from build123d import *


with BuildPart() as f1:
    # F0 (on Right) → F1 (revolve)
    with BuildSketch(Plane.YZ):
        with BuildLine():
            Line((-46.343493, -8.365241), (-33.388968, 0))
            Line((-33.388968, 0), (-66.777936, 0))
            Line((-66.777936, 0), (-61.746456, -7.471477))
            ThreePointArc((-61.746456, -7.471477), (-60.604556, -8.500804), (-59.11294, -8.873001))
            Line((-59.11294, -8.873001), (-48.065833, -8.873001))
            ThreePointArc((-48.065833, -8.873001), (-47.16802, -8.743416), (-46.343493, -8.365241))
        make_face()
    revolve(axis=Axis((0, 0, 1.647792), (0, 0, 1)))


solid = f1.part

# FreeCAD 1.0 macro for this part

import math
import FreeCAD as App
import Part
import Sketcher
Q = App.Units.Quantity

doc = App.newDocument("Part")
body = doc.addObject("PartDesign::Body", "Body")

# Sketch on YZ plane
sketch1 = doc.addObject("Sketcher::SketchObject", "Sketch")
body.addObject(sketch1)
sketch1.AttachmentSupport = (doc.YZ_Plane, [""])
sketch1.MapMode = "FlatFace"
sketch1.addGeometry(Part.LineSegment(App.Vector(-46.3, -8.4, 0), App.Vector(-33.4, 0, 0)), False)
sketch1.addGeometry(Part.LineSegment(App.Vector(-33.4, 0, 0), App.Vector(-66.8, 0, 0)), False)
sketch1.addGeometry(Part.LineSegment(App.Vector(-66.8, 0, 0), App.Vector(-61.7, -7.5, 0)), False)
sketch1.addGeometry(Part.ArcOfCircle(Part.Circle(App.Vector(-59.1, -5.7, 0), App.Vector(0, 0, 1), 3.2), math.radians(-146), math.radians(-90)), False)
sketch1.addGeometry(Part.LineSegment(App.Vector(-59.1, -8.9, 0), App.Vector(-48.1, -8.9, 0)), False)
sketch1.addGeometry(Part.ArcOfCircle(Part.Circle(App.Vector(-48.1, -5.7, 0), App.Vector(0, 0, 1), 3.2), math.radians(-90), math.radians(-57)), False)
sketch1.addConstraint(Sketcher.Constraint("Coincident", 0, 2, 1, 1))
sketch1.addConstraint(Sketcher.Constraint("Coincident", 1, 2, 2, 1))
sketch1.addConstraint(Sketcher.Constraint("Tangent", 2, 2, 3, 1))
sketch1.addConstraint(Sketcher.Constraint("Tangent", 3, 2, 4, 1))
sketch1.addConstraint(Sketcher.Constraint("Tangent", 4, 2, 5, 1))
sketch1.addConstraint(Sketcher.Constraint("Tangent", 5, 2, 0, 1))
sketch1.addConstraint(Sketcher.Constraint("Horizontal", 1))
sketch1.addConstraint(Sketcher.Constraint("Horizontal", 4))
sketch1.addConstraint(Sketcher.Constraint("PointOnObject", 0, 2, -1))
sketch1.addConstraint(Sketcher.Constraint("Radius", 3, Q("0.1250001 in")))
sketch1.addConstraint(Sketcher.Constraint("Radius", 5, Q("3.175015 mm")))
sketch1.addConstraint(Sketcher.Constraint("DistanceY", 3, 3, -1, 1, Q("5.697999 mm")))
sketch1.addConstraint(Sketcher.Constraint("DistanceX", 3, 3, 5, 3, Q("11.047101 mm")))
sketch1.addConstraint(Sketcher.Constraint("DistanceX", 1, 2, 5, 3, Q("18.712099 mm")))
sketch1.addConstraint(Sketcher.Constraint("DistanceX", 1, 2, 1, 1, Q("33.388968 mm")))
sketch1.addConstraint(Sketcher.Constraint("DistanceX", 3, 3, -1, 1, Q("59.112939 mm")))
revolution = doc.addObject("PartDesign::Revolution", "Revolution")
body.addObject(revolution)
revolution.Profile = sketch1
revolution.ReferenceAxis = (sketch1, ["V_Axis"])
revolution.Angle = 360

doc.recompute()
